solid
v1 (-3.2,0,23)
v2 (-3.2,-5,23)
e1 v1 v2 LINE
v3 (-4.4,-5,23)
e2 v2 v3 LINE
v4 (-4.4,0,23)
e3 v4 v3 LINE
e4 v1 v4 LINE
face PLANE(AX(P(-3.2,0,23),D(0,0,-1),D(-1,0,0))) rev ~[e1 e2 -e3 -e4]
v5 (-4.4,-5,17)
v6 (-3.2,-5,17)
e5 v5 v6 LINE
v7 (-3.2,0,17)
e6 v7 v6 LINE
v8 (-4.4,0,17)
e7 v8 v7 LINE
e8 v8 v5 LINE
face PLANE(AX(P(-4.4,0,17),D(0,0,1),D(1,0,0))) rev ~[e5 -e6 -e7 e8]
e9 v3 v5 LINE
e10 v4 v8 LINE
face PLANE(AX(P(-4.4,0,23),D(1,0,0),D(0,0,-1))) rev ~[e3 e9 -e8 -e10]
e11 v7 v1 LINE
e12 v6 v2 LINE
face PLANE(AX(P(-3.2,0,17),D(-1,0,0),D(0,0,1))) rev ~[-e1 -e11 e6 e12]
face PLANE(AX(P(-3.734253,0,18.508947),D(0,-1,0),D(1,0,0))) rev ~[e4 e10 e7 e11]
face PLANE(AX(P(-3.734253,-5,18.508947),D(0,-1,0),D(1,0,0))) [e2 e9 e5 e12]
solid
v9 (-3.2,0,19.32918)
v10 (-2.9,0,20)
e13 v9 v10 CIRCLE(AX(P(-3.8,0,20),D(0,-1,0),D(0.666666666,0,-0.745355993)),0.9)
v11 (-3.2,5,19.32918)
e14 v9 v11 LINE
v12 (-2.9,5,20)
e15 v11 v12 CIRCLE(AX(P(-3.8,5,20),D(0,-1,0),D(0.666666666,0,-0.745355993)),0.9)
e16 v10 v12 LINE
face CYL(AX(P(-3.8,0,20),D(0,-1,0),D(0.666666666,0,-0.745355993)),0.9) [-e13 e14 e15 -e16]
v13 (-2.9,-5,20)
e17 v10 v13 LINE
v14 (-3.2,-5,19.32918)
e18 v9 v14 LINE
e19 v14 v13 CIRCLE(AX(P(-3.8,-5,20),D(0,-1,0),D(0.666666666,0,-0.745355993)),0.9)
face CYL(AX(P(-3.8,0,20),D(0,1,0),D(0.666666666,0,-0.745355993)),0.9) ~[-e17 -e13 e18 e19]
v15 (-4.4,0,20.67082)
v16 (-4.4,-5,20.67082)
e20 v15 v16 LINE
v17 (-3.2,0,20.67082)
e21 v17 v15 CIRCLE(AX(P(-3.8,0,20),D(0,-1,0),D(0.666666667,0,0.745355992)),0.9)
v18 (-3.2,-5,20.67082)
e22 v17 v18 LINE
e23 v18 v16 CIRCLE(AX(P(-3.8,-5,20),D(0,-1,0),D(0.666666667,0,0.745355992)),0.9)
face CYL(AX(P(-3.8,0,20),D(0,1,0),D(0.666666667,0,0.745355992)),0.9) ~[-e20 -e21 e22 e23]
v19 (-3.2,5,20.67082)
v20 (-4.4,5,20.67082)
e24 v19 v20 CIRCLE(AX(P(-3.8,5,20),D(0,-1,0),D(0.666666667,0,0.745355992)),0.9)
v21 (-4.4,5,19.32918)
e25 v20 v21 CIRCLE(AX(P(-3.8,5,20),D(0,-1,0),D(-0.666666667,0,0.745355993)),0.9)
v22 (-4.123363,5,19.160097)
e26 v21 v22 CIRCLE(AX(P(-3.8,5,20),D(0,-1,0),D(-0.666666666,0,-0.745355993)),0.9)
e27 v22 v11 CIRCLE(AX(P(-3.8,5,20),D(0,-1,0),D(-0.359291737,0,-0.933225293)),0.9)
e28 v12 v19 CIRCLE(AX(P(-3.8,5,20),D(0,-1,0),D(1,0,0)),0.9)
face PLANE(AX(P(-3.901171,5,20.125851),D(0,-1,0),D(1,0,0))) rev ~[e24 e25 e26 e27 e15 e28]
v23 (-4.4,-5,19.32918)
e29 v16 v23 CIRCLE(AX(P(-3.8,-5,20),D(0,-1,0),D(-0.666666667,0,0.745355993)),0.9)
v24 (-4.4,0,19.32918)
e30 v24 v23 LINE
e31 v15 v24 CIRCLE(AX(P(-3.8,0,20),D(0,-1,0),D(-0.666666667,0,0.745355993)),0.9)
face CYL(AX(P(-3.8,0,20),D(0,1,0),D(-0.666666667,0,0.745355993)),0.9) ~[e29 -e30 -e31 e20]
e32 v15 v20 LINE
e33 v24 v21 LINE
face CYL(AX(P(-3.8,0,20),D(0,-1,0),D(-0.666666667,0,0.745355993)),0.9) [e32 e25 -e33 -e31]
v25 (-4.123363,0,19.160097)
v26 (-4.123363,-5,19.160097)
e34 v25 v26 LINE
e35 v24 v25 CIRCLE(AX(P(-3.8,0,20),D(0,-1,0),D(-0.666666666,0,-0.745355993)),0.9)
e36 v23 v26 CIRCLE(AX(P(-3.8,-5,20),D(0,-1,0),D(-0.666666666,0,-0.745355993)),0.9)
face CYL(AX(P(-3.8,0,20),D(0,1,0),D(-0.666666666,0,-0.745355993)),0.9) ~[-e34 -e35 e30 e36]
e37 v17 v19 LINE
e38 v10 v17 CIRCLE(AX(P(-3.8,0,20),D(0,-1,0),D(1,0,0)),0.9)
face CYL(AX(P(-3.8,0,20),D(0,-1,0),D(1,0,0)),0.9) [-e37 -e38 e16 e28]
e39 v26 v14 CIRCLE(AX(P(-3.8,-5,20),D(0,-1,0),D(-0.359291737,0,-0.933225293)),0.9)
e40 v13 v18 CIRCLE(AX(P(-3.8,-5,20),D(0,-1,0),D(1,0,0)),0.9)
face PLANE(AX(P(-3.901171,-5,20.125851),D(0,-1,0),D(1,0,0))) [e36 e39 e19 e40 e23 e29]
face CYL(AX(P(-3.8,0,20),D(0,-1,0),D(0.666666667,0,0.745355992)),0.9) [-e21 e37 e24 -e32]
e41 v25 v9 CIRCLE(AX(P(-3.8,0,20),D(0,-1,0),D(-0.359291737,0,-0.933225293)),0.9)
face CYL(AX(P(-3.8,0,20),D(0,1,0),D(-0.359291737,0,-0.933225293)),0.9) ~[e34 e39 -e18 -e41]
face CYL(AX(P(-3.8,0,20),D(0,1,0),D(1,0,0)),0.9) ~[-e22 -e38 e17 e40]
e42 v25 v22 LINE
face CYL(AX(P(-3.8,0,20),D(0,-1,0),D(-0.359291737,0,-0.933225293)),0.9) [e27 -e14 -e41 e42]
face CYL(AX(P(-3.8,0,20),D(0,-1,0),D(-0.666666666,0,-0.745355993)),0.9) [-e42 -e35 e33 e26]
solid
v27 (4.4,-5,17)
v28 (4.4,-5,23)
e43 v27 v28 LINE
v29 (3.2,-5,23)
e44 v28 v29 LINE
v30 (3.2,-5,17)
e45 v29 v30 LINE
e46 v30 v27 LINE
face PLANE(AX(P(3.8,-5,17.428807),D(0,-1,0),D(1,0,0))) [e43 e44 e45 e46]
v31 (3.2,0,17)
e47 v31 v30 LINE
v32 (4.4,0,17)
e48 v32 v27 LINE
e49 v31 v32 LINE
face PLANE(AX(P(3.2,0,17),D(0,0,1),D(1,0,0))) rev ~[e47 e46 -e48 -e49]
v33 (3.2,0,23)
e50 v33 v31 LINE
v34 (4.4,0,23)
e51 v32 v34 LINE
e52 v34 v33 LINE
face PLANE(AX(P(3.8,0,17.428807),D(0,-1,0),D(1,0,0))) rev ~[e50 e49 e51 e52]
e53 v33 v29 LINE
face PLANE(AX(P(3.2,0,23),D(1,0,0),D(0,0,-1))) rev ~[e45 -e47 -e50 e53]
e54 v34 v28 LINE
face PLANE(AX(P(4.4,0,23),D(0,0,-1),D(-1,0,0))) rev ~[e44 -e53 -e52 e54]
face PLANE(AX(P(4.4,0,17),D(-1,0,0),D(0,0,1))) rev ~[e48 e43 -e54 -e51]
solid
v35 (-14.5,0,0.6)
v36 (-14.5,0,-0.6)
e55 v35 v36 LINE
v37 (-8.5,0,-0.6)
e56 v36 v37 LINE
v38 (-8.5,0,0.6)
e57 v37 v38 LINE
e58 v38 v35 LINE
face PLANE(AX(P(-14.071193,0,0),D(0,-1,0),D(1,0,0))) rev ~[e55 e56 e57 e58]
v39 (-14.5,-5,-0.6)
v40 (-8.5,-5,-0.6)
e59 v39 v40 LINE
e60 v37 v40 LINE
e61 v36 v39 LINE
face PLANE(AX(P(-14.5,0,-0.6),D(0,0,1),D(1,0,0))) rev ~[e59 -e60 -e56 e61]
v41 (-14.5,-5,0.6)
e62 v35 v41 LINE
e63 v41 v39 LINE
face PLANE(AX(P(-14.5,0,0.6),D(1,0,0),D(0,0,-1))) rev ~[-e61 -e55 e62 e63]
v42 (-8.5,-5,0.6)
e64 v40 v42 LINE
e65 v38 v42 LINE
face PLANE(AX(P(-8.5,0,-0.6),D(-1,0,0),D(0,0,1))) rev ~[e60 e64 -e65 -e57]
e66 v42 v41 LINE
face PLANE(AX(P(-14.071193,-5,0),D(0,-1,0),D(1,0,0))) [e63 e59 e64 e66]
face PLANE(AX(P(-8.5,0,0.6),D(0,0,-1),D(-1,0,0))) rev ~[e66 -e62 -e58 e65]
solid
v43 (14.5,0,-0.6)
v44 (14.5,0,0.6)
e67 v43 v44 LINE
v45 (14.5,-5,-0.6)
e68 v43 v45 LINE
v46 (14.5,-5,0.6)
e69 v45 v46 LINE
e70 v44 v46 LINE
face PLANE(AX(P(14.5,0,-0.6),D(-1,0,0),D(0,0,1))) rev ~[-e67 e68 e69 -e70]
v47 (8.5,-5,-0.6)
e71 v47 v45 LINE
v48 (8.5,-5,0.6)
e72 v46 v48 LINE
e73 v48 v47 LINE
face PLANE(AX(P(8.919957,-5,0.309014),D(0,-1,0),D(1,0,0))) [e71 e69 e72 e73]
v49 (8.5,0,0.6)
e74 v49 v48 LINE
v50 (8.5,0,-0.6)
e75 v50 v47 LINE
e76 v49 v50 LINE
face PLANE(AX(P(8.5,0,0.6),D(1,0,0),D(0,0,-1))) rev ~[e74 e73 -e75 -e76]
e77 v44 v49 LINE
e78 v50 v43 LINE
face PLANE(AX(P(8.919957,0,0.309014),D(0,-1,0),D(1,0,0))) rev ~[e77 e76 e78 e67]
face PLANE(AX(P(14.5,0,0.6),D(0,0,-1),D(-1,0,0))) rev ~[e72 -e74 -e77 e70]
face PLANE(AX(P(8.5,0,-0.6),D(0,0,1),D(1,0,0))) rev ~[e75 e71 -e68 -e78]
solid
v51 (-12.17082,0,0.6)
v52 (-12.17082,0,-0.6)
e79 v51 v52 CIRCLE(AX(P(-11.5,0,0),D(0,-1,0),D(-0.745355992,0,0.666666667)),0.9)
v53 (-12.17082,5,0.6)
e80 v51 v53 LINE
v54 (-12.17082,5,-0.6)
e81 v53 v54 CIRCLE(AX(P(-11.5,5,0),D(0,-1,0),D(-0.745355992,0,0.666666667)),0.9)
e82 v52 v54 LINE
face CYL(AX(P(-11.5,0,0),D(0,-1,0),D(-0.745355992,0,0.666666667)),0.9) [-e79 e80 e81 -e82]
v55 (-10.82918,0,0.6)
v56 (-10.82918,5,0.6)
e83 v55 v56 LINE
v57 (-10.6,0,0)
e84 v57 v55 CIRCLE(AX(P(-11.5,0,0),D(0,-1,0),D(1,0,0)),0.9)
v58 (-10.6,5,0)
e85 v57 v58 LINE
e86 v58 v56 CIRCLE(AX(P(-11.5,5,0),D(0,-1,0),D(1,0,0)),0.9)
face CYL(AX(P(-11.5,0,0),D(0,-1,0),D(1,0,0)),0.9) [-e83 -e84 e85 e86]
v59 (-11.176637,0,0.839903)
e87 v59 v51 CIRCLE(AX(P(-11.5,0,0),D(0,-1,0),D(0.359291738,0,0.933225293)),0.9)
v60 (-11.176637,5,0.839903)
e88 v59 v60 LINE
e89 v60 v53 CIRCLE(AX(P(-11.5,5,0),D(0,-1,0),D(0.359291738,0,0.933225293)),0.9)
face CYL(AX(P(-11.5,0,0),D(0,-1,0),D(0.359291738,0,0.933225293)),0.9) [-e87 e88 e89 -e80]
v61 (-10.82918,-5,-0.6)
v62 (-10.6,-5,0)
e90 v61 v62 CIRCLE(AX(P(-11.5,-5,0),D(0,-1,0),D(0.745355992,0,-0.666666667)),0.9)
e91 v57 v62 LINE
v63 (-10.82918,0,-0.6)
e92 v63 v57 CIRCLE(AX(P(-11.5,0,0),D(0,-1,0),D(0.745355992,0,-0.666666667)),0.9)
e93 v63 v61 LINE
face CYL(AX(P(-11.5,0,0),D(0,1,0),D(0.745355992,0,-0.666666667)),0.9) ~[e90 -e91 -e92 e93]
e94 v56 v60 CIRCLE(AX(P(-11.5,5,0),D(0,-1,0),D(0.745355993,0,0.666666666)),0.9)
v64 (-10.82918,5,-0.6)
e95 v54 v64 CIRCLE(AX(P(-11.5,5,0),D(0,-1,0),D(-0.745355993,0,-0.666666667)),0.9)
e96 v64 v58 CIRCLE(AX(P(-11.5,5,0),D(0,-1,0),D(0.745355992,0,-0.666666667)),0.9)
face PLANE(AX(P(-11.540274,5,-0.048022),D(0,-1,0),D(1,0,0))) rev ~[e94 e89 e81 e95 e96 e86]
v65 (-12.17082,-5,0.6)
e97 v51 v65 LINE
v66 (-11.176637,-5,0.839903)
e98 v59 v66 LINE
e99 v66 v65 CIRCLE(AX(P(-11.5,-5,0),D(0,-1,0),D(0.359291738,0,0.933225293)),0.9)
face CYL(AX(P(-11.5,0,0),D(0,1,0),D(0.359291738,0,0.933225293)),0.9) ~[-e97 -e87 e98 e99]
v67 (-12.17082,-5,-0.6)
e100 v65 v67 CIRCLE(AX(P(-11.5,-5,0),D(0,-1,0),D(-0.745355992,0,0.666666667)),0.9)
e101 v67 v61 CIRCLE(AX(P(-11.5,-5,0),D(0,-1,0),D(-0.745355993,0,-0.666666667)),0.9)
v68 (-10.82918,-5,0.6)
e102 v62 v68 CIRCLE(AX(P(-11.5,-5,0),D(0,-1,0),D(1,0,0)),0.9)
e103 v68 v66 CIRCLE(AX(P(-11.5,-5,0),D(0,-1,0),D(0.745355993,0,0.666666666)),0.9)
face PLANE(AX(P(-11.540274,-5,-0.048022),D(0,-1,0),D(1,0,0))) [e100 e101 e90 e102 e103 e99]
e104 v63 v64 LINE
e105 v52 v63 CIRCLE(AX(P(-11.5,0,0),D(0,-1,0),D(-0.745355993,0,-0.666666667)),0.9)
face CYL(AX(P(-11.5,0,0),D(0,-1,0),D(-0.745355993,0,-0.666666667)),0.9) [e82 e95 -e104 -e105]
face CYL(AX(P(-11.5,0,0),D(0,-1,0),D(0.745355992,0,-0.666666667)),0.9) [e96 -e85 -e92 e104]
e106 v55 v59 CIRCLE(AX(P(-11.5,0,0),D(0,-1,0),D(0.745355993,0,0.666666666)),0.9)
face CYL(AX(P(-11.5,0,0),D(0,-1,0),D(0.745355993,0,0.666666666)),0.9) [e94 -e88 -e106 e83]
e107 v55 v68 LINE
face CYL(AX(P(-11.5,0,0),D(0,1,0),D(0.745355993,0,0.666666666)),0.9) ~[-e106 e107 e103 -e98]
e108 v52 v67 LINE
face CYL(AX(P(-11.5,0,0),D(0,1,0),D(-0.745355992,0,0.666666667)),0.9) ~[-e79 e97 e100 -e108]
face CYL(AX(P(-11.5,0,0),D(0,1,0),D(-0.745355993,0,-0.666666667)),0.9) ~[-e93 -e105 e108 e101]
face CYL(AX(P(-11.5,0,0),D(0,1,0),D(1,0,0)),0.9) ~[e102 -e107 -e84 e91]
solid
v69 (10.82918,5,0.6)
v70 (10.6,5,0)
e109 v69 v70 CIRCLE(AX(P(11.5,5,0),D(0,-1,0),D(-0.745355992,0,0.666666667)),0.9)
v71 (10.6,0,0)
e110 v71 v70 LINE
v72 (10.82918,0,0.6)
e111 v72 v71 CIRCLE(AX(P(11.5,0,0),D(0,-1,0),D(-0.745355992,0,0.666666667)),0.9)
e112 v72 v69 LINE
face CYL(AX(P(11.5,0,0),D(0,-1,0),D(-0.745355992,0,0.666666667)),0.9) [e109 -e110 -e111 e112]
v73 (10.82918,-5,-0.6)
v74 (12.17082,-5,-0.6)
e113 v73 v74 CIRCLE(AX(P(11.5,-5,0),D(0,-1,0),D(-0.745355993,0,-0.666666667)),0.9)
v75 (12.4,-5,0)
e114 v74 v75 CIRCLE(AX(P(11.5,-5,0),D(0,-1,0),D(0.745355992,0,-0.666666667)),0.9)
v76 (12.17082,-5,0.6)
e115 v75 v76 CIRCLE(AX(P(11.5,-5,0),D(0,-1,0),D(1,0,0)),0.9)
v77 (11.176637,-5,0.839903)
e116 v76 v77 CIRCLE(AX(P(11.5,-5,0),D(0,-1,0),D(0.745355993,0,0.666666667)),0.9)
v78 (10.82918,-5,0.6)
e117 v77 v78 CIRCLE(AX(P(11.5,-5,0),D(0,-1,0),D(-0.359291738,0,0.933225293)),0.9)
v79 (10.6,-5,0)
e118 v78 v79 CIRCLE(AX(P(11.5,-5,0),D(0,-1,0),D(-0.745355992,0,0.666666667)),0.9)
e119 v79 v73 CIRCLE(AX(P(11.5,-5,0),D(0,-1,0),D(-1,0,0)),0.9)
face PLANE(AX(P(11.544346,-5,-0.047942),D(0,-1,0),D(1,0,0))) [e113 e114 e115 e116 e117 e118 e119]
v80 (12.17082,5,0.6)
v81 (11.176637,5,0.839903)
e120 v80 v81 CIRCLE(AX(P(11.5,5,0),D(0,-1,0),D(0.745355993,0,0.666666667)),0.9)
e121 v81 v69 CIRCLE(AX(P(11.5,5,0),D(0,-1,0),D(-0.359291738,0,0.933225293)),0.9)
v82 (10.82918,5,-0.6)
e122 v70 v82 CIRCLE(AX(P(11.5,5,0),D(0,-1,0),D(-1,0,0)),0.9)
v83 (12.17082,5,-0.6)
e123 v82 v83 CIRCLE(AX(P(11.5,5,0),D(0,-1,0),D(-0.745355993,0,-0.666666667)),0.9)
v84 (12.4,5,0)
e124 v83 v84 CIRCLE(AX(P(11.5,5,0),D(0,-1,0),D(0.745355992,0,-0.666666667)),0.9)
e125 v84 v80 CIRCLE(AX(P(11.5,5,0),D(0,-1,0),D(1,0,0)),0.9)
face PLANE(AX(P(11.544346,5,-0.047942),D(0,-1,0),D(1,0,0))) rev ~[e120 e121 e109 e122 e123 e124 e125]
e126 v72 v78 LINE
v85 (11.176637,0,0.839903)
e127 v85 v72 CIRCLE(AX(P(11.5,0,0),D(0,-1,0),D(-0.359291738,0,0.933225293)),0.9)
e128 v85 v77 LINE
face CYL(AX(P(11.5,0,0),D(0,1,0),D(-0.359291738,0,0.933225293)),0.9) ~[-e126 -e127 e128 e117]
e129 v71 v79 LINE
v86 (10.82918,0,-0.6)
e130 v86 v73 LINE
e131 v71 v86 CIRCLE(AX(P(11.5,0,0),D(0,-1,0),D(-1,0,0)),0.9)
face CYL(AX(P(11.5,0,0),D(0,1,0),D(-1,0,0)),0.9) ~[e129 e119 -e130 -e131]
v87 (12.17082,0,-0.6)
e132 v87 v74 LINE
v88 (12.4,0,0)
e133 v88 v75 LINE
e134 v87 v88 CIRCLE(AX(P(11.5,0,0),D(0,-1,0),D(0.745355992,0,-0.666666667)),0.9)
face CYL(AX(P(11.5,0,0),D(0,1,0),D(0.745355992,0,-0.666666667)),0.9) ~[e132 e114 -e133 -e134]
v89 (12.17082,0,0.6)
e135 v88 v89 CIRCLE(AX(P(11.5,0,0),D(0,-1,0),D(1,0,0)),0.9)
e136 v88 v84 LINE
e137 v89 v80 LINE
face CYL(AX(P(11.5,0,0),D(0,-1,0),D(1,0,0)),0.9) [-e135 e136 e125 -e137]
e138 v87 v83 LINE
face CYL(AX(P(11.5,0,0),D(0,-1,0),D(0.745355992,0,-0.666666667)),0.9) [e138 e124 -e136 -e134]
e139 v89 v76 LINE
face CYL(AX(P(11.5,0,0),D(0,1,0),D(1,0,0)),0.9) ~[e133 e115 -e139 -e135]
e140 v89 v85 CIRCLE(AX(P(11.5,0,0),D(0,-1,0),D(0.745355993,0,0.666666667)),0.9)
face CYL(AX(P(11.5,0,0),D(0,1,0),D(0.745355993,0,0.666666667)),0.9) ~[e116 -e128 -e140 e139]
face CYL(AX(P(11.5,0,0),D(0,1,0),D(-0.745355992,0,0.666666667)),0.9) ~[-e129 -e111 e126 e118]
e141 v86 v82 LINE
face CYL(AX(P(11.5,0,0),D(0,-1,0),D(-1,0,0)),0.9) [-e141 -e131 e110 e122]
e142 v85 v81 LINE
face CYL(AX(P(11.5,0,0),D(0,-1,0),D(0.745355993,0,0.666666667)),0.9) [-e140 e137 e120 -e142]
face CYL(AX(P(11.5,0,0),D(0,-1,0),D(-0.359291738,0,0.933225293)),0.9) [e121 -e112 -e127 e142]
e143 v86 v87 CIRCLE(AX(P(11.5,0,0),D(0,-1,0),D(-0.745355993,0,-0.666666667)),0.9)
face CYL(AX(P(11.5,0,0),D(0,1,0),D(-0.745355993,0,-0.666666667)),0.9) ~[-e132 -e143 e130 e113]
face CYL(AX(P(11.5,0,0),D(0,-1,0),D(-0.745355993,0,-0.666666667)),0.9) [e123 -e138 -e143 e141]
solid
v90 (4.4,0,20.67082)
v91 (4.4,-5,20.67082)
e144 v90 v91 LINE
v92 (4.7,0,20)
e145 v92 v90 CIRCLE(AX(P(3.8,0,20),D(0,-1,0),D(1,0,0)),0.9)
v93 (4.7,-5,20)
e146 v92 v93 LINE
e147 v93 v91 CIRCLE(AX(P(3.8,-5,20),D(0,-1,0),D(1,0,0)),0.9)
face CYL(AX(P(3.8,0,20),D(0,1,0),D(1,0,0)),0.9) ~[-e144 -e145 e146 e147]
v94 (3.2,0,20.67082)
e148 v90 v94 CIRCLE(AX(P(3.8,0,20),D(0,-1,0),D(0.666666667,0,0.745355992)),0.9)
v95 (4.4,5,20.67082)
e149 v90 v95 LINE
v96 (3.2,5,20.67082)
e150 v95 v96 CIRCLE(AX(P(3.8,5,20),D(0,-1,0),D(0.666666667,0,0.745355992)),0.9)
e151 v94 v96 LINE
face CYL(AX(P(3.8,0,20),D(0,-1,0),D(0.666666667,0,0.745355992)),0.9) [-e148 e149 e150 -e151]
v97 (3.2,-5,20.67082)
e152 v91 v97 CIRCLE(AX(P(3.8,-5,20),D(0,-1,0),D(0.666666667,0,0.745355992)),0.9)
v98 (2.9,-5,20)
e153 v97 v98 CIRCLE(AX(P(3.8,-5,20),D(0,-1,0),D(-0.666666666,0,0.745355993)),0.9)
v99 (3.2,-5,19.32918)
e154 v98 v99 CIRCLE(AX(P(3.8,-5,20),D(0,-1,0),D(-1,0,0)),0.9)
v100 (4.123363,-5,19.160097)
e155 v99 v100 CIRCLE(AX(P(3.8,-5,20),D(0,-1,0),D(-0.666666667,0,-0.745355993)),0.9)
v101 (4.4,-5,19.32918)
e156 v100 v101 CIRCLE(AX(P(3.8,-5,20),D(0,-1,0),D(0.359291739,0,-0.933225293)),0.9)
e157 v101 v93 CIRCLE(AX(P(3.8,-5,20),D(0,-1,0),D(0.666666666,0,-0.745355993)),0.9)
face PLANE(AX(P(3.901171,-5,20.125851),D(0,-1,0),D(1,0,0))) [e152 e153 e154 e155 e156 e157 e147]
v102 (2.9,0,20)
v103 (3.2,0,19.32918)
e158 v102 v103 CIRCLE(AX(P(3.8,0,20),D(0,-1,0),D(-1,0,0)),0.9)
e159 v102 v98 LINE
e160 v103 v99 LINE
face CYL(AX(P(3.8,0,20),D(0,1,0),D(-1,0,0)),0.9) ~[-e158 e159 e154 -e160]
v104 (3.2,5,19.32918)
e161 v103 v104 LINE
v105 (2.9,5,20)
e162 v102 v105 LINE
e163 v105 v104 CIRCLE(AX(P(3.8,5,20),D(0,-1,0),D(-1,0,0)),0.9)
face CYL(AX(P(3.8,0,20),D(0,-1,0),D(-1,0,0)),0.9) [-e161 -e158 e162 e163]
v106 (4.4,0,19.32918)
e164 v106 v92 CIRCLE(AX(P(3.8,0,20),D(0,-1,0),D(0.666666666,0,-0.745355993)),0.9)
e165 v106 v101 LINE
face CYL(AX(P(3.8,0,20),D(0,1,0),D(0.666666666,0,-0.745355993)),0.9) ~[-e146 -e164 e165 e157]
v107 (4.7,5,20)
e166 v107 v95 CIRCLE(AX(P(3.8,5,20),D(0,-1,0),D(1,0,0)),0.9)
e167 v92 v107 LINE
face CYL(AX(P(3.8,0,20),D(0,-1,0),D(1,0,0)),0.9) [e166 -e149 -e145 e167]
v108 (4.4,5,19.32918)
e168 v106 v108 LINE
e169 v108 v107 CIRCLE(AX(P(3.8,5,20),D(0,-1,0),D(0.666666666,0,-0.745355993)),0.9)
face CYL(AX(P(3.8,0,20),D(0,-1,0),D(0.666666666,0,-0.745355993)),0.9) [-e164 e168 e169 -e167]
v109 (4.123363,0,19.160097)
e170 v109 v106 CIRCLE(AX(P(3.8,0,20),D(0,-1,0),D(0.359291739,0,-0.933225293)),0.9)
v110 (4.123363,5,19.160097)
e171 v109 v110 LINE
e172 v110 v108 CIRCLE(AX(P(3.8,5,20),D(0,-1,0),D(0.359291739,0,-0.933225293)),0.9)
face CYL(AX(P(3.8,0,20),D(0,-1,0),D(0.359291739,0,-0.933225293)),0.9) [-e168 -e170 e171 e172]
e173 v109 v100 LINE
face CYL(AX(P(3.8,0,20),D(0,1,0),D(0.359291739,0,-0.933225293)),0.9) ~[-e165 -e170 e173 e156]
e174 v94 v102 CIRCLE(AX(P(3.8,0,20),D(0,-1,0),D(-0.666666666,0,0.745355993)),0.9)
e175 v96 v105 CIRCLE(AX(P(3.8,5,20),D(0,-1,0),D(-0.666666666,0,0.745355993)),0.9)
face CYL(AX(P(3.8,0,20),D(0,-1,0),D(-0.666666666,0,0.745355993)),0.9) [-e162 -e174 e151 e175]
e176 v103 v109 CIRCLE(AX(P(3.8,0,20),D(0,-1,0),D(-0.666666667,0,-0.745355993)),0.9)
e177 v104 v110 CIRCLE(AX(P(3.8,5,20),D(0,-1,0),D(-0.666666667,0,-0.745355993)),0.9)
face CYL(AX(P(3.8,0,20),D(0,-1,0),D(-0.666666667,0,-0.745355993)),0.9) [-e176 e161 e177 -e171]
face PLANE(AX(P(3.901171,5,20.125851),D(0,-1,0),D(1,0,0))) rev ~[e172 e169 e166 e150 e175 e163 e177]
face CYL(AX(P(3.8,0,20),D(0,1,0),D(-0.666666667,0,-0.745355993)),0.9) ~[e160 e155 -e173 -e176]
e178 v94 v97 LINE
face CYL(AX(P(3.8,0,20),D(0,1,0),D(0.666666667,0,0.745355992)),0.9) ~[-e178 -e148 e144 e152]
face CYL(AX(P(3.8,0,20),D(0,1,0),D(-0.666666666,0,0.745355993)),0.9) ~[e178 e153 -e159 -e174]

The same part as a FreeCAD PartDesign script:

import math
import FreeCAD as App
import Part
import Sketcher

V = App.Vector
Q = App.Units.Quantity


def add_polygon(sketch, points):
    """Adds a closed chain of lines whose ends are joined by coincident constraints."""
    first, n = sketch.GeometryCount, len(points)
    for a, b in zip(points, points[1:] + points[:1]):
        sketch.addGeometry(Part.LineSegment(App.Vector(*a, 0), App.Vector(*b, 0)), False)
    for i in range(n):
        sketch.addConstraint(Sketcher.Constraint("Coincident", first + i, 2, first + (i + 1) % n, 1))

doc = App.newDocument("Part")
body = doc.addObject("PartDesign::Body", "Body")

sketch1 = body.newObject("Sketcher::SketchObject", "Sketch")
sketch1.AttachmentSupport = (doc.getObject("XZ_Plane"), [""])
sketch1.MapMode = "FlatFace"
sketch1.addGeometry(Part.ArcOfCircle(Part.Circle(V(-3.8, 20, 0), V(0, 0, 1), 0.9), math.radians(48.189685), math.radians(131.810315)), False)
sketch1.addGeometry(Part.ArcOfCircle(Part.Circle(V(-3.8, 20, 0), V(0, 0, 1), 0.9), math.radians(131.810315), math.radians(228.189685)), False)
sketch1.addGeometry(Part.ArcOfCircle(Part.Circle(V(-3.8, 20, 0), V(0, 0, 1), 0.9), math.radians(-131.810315), math.radians(-111.056706)), False)
sketch1.addGeometry(Part.ArcOfCircle(Part.Circle(V(-3.8, 20, 0), V(0, 0, 1), 0.9), math.radians(-111.056706), math.radians(-48.189685)), False)
sketch1.addGeometry(Part.ArcOfCircle(Part.Circle(V(-3.8, 20, 0), V(0, 0, 1), 0.9), math.radians(-48.189685), math.radians(0)), False)
sketch1.addGeometry(Part.ArcOfCircle(Part.Circle(V(-3.8, 20, 0), V(0, 0, 1), 0.9), math.radians(0), math.radians(48.189685)), False)
sketch1.addConstraint(Sketcher.Constraint("Tangent", 0, 2, 1, 1))
sketch1.addConstraint(Sketcher.Constraint("Tangent", 1, 2, 2, 1))
sketch1.addConstraint(Sketcher.Constraint("Tangent", 2, 2, 3, 1))
sketch1.addConstraint(Sketcher.Constraint("Tangent", 3, 2, 4, 1))
sketch1.addConstraint(Sketcher.Constraint("Tangent", 4, 2, 5, 1))
sketch1.addConstraint(Sketcher.Constraint("Tangent", 5, 2, 0, 1))
sketch1.addConstraint(Sketcher.Constraint("Coincident", 2, 3, 0, 3))
sketch1.addConstraint(Sketcher.Constraint("Equal", 2, 3))
sketch1.addConstraint(Sketcher.Constraint("Horizontal", 1, 2, 3, 2))
sketch1.addConstraint(Sketcher.Constraint("Horizontal", 5, 3, 4, 2))
sketch1.addConstraint(Sketcher.Constraint("Horizontal", 0, 2, 5, 2))
sketch1.addConstraint(Sketcher.Constraint("Vertical", 0, 2, 1, 2))
sketch1.addConstraint(Sketcher.Constraint("Radius", 0, Q("0.9 mm")))
sketch1.addConstraint(Sketcher.Constraint("DistanceY", -1, 1, 0, 3, Q("20 mm")))
sketch1.addConstraint(Sketcher.Constraint("DistanceX", 0, 3, -1, 1, Q("3.8 mm")))
sketch1.addConstraint(Sketcher.Constraint("DistanceX", 0, 2, -1, 1, Q("4.4 mm")))
sketch1.addConstraint(Sketcher.Constraint("DistanceX", 2, 2, -1, 1, Q("4.123363 mm")))
pad1 = body.newObject("PartDesign::Pad", "Pad")
pad1.Profile = sketch1
pad1.Type = "TwoLengths"
pad1.Length = 5
pad1.Length2 = 5
pad1.Reversed = True
body2 = doc.addObject("PartDesign::Body", "Body001")

sketch2 = body2.newObject("Sketcher::SketchObject", "Sketch001")
sketch2.AttachmentSupport = (doc.getObject("XZ_Plane001"), [""])
sketch2.MapMode = "FlatFace"
sketch2.addGeometry(Part.ArcOfCircle(Part.Circle(V(3.8, 20, 0), V(0, 0, 1), 0.9), math.radians(-131.810315), math.radians(-68.943294)), False)
sketch2.addGeometry(Part.ArcOfCircle(Part.Circle(V(3.8, 20, 0), V(0, 0, 1), 0.9), math.radians(-68.943294), math.radians(-48.189685)), False)
sketch2.addGeometry(Part.ArcOfCircle(Part.Circle(V(3.8, 20, 0), V(0, 0, 1), 0.9), math.radians(-48.189685), math.radians(0)), False)
sketch2.addGeometry(Part.ArcOfCircle(Part.Circle(V(3.8, 20, 0), V(0, 0, 1), 0.9), math.radians(0), math.radians(48.189685)), False)
sketch2.addGeometry(Part.ArcOfCircle(Part.Circle(V(3.8, 20, 0), V(0, 0, 1), 0.9), math.radians(48.189685), math.radians(131.810315)), False)
sketch2.addGeometry(Part.ArcOfCircle(Part.Circle(V(3.8, 20, 0), V(0, 0, 1), 0.9), math.radians(131.810315), math.radians(180)), False)
sketch2.addGeometry(Part.ArcOfCircle(Part.Circle(V(3.8, 20, 0), V(0, 0, 1), 0.9), math.radians(180), math.radians(228.189685)), False)
sketch2.addConstraint(Sketcher.Constraint("Tangent", 0, 2, 1, 1))
sketch2.addConstraint(Sketcher.Constraint("Tangent", 1, 2, 2, 1))
sketch2.addConstraint(Sketcher.Constraint("Tangent", 2, 2, 3, 1))
sketch2.addConstraint(Sketcher.Constraint("Tangent", 3, 2, 4, 1))
sketch2.addConstraint(Sketcher.Constraint("Tangent", 4, 2, 5, 1))
sketch2.addConstraint(Sketcher.Constraint("Tangent", 5, 2, 6, 1))
sketch2.addConstraint(Sketcher.Constraint("Tangent", 6, 2, 0, 1))
sketch2.addConstraint(Sketcher.Constraint("Coincident", 2, 3, 0, 3))
sketch2.addConstraint(Sketcher.Constraint("Coincident", 4, 3, 0, 3))
sketch2.addConstraint(Sketcher.Constraint("Horizontal", 6, 3, 2, 2))
sketch2.addConstraint(Sketcher.Constraint("Horizontal", 3, 2, 4, 2))
sketch2.addConstraint(Sketcher.Constraint("Horizontal", 2, 2, 5, 2))
sketch2.addConstraint(Sketcher.Constraint("Horizontal", 1, 2, 6, 2))
sketch2.addConstraint(Sketcher.Constraint("Vertical", 1, 2, 3, 2))
sketch2.addConstraint(Sketcher.Constraint("Radius", 0, Q("0.9 mm")))
sketch2.addConstraint(Sketcher.Constraint("DistanceY", -1, 1, 0, 3, Q("20 mm")))
sketch2.addConstraint(Sketcher.Constraint("DistanceX", -1, 1, 0, 3, Q("3.8 mm")))
sketch2.addConstraint(Sketcher.Constraint("DistanceX", -1, 1, 1, 2, Q("4.4 mm")))
sketch2.addConstraint(Sketcher.Constraint("DistanceX", -1, 1, 0, 2, Q("4.123363 mm")))
pad2 = body2.newObject("PartDesign::Pad", "Pad001")
pad2.Profile = sketch2
pad2.Type = "TwoLengths"
pad2.Length = 5
pad2.Length2 = 5
pad2.Reversed = True
body3 = doc.addObject("PartDesign::Body", "Body002")

sketch3 = body3.newObject("Sketcher::SketchObject", "Sketch002")
sketch3.AttachmentSupport = (doc.getObject("XZ_Plane002"), [""])
sketch3.MapMode = "FlatFace"
sketch3.addGeometry(Part.ArcOfCircle(Part.Circle(V(-11.5, 0, 0), V(0, 0, 1), 0.9), math.radians(138.189685), math.radians(221.810315)), False)
sketch3.addGeometry(Part.ArcOfCircle(Part.Circle(V(-11.5, 0, 0), V(0, 0, 1), 0.9), math.radians(-138.189685), math.radians(-41.810315)), False)
sketch3.addGeometry(Part.ArcOfCircle(Part.Circle(V(-11.5, 0, 0), V(0, 0, 1), 0.9), math.radians(-41.810315), math.radians(0)), False)
sketch3.addGeometry(Part.ArcOfCircle(Part.Circle(V(-11.5, 0, 0), V(0, 0, 1), 0.9), math.radians(0), math.radians(41.810315)), False)
sketch3.addGeometry(Part.ArcOfCircle(Part.Circle(V(-11.5, 0, 0), V(0, 0, 1), 0.9), math.radians(41.810315), math.radians(68.943294)), False)
sketch3.addGeometry(Part.ArcOfCircle(Part.Circle(V(-11.5, 0, 0), V(0, 0, 1), 0.9), math.radians(68.943294), math.radians(138.189685)), False)
sketch3.addConstraint(Sketcher.Constraint("Tangent", 0, 2, 1, 1))
sketch3.addConstraint(Sketcher.Constraint("Tangent", 1, 2, 2, 1))
sketch3.addConstraint(Sketcher.Constraint("Tangent", 2, 2, 3, 1))
sketch3.addConstraint(Sketcher.Constraint("Tangent", 3, 2, 4, 1))
sketch3.addConstraint(Sketcher.Constraint("Tangent", 4, 2, 5, 1))
sketch3.addConstraint(Sketcher.Constraint("Tangent", 5, 2, 0, 1))
sketch3.addConstraint(Sketcher.Constraint("Coincident", 2, 3, 0, 3))
sketch3.addConstraint(Sketcher.Constraint("Equal", 2, 3))
sketch3.addConstraint(Sketcher.Constraint("Symmetric", 1, 2, 3, 2, -1))
sketch3.addConstraint(Sketcher.Constraint("PointOnObject", 2, 2, -1))
sketch3.addConstraint(Sketcher.Constraint("Horizontal", 0, 2, 1, 2))
sketch3.addConstraint(Sketcher.Constraint("Horizontal", 3, 2, 5, 2))
sketch3.addConstraint(Sketcher.Constraint("Radius", 0, Q("0.9 mm")))
sketch3.addConstraint(Sketcher.Constraint("DistanceX", 0, 3, -1, 1, Q("11.5 mm")))
sketch3.addConstraint(Sketcher.Constraint("DistanceY", 0, 2, -1, 1, Q("0.6 mm")))
sketch3.addConstraint(Sketcher.Constraint("DistanceX", 4, 2, -1, 1, Q("11.176637 mm")))
pad3 = body3.newObject("PartDesign::Pad", "Pad002")
pad3.Profile = sketch3
pad3.Type = "TwoLengths"
pad3.Length = 5
pad3.Length2 = 5
pad3.Reversed = True
body4 = doc.addObject("PartDesign::Body", "Body003")

sketch4 = body4.newObject("Sketcher::SketchObject", "Sketch003")
sketch4.AttachmentSupport = (doc.getObject("XZ_Plane003"), [""])
sketch4.MapMode = "FlatFace"
sketch4.addGeometry(Part.ArcOfCircle(Part.Circle(V(11.5, 0, 0), V(0, 0, 1), 0.9), math.radians(138.189685), math.radians(180)), False)
sketch4.addGeometry(Part.ArcOfCircle(Part.Circle(V(11.5, 0, 0), V(0, 0, 1), 0.9), math.radians(180), math.radians(221.810315)), False)
sketch4.addGeometry(Part.ArcOfCircle(Part.Circle(V(11.5, 0, 0), V(0, 0, 1), 0.9), math.radians(-138.189685), math.radians(-41.810315)), False)
sketch4.addGeometry(Part.ArcOfCircle(Part.Circle(V(11.5, 0, 0), V(0, 0, 1), 0.9), math.radians(-41.810315), math.radians(0)), False)
sketch4.addGeometry(Part.ArcOfCircle(Part.Circle(V(11.5, 0, 0), V(0, 0, 1), 0.9), math.radians(0), math.radians(41.810315)), False)
sketch4.addGeometry(Part.ArcOfCircle(Part.Circle(V(11.5, 0, 0), V(0, 0, 1), 0.9), math.radians(41.810315), math.radians(111.056706)), False)
sketch4.addGeometry(Part.ArcOfCircle(Part.Circle(V(11.5, 0, 0), V(0, 0, 1), 0.9), math.radians(111.056706), math.radians(138.189685)), False)
sketch4.addConstraint(Sketcher.Constraint("Tangent", 0, 2, 1, 1))
sketch4.addConstraint(Sketcher.Constraint("Tangent", 1, 2, 2, 1))
sketch4.addConstraint(Sketcher.Constraint("Tangent", 2, 2, 3, 1))
sketch4.addConstraint(Sketcher.Constraint("Tangent", 3, 2, 4, 1))
sketch4.addConstraint(Sketcher.Constraint("Tangent", 4, 2, 5, 1))
sketch4.addConstraint(Sketcher.Constraint("Tangent", 5, 2, 6, 1))
sketch4.addConstraint(Sketcher.Constraint("Tangent", 6, 2, 0, 1))
sketch4.addConstraint(Sketcher.Constraint("Coincident", 2, 3, 0, 3))
sketch4.addConstraint(Sketcher.Constraint("Coincident", 4, 3, 0, 3))
sketch4.addConstraint(Sketcher.Constraint("Symmetric", 2, 2, 4, 2, -1))
sketch4.addConstraint(Sketcher.Constraint("PointOnObject", 0, 2, -1))
sketch4.addConstraint(Sketcher.Constraint("PointOnObject", 3, 2, -1))
sketch4.addConstraint(Sketcher.Constraint("Horizontal", 1, 2, 2, 2))
sketch4.addConstraint(Sketcher.Constraint("Horizontal", 4, 2, 6, 2))
sketch4.addConstraint(Sketcher.Constraint("Radius", 0, Q("0.9 mm")))
sketch4.addConstraint(Sketcher.Constraint("DistanceX", -1, 1, 0, 3, Q("11.5 mm")))
sketch4.addConstraint(Sketcher.Constraint("DistanceY", 1, 2, -1, 1, Q("0.6 mm")))
sketch4.addConstraint(Sketcher.Constraint("DistanceX", -1, 1, 5, 2, Q("11.176637 mm")))
pad4 = body4.newObject("PartDesign::Pad", "Pad003")
pad4.Profile = sketch4
pad4.Type = "TwoLengths"
pad4.Length = 5
pad4.Length2 = 5
pad4.Reversed = True
body5 = doc.addObject("PartDesign::Body", "Body004")

sketch5 = body5.newObject("Sketcher::SketchObject", "Sketch004")
sketch5.AttachmentSupport = (doc.getObject("XZ_Plane004"), [""])
sketch5.MapMode = "FlatFace"
add_polygon(sketch5, [(-14.5, 0.6), (-14.5, -0.6), (-8.5, -0.6), (-8.5, 0.6)])
sketch5.addConstraint(Sketcher.Constraint("Vertical", 0))
sketch5.addConstraint(Sketcher.Constraint("Horizontal", 1))
sketch5.addConstraint(Sketcher.Constraint("Vertical", 2))
sketch5.addConstraint(Sketcher.Constraint("Horizontal", 3))
sketch5.addConstraint(Sketcher.Constraint("DistanceX", 1, 1, 1, 2, Q("6 mm")))
sketch5.addConstraint(Sketcher.Constraint("DistanceY", 0, 2, 0, 1, Q("1.2 mm")))
sketch5.addConstraint(Sketcher.Constraint("DistanceX", 0, 2, -1, 1, Q("14.5 mm")))
sketch5.addConstraint(Sketcher.Constraint("DistanceY", 0, 2, -1, 1, Q("0.6 mm")))
pad5 = body5.newObject("PartDesign::Pad", "Pad004")
pad5.Profile = sketch5
pad5.Length = 5
body6 = doc.addObject("PartDesign::Body", "Body005")

sketch6 = body6.newObject("Sketcher::SketchObject", "Sketch005")
sketch6.AttachmentSupport = (doc.getObject("XZ_Plane005"), [""])
sketch6.MapMode = "FlatFace"
add_polygon(sketch6, [(8.5, 0.6), (8.5, -0.6), (14.5, -0.6), (14.5, 0.6)])
sketch6.addConstraint(Sketcher.Constraint("Vertical", 0))
sketch6.addConstraint(Sketcher.Constraint("Horizontal", 1))
sketch6.addConstraint(Sketcher.Constraint("Vertical", 2))
sketch6.addConstraint(Sketcher.Constraint("Horizontal", 3))
sketch6.addConstraint(Sketcher.Constraint("DistanceX", 1, 1, 1, 2, Q("6 mm")))
sketch6.addConstraint(Sketcher.Constraint("DistanceY", 0, 2, 0, 1, Q("1.2 mm")))
sketch6.addConstraint(Sketcher.Constraint("DistanceX", -1, 1, 0, 2, Q("8.5 mm")))
sketch6.addConstraint(Sketcher.Constraint("DistanceY", 0, 2, -1, 1, Q("0.6 mm")))
pad6 = body6.newObject("PartDesign::Pad", "Pad005")
pad6.Profile = sketch6
pad6.Length = 5
body7 = doc.addObject("PartDesign::Body", "Body006")

sketch7 = body7.newObject("Sketcher::SketchObject", "Sketch006")
sketch7.AttachmentSupport = (doc.getObject("XZ_Plane006"), [""])
sketch7.MapMode = "FlatFace"
add_polygon(sketch7, [(3.2, 17), (4.4, 17), (4.4, 23), (3.2, 23)])
sketch7.addConstraint(Sketcher.Constraint("Horizontal", 0))
sketch7.addConstraint(Sketcher.Constraint("Vertical", 1))
sketch7.addConstraint(Sketcher.Constraint("Horizontal", 2))
sketch7.addConstraint(Sketcher.Constraint("Vertical", 3))
sketch7.addConstraint(Sketcher.Constraint("DistanceY", 1, 1, 1, 2, Q("6 mm")))
sketch7.addConstraint(Sketcher.Constraint("DistanceX", 0, 1, 0, 2, Q("1.2 mm")))
sketch7.addConstraint(Sketcher.Constraint("DistanceY", -1, 1, 0, 2, Q("17 mm")))
sketch7.addConstraint(Sketcher.Constraint("DistanceX", -1, 1, 0, 2, Q("4.4 mm")))
pad7 = body7.newObject("PartDesign::Pad", "Pad006")
pad7.Profile = sketch7
pad7.Length = 5
body8 = doc.addObject("PartDesign::Body", "Body007")

sketch8 = body8.newObject("Sketcher::SketchObject", "Sketch007")
sketch8.AttachmentSupport = (doc.getObject("XZ_Plane007"), [""])
sketch8.MapMode = "FlatFace"
add_polygon(sketch8, [(-4.4, 17), (-3.2, 17), (-3.2, 23), (-4.4, 23)])
sketch8.addConstraint(Sketcher.Constraint("Horizontal", 0))
sketch8.addConstraint(Sketcher.Constraint("Vertical", 1))
sketch8.addConstraint(Sketcher.Constraint("Horizontal", 2))
sketch8.addConstraint(Sketcher.Constraint("Vertical", 3))
sketch8.addConstraint(Sketcher.Constraint("DistanceY", 1, 1, 1, 2, Q("6 mm")))
sketch8.addConstraint(Sketcher.Constraint("DistanceX", 0, 1, 0, 2, Q("1.2 mm")))
sketch8.addConstraint(Sketcher.Constraint("DistanceY", -1, 1, 0, 2, Q("17 mm")))
sketch8.addConstraint(Sketcher.Constraint("DistanceX", 0, 2, -1, 1, Q("3.2 mm")))
pad8 = body8.newObject("PartDesign::Pad", "Pad007")
pad8.Profile = sketch8
pad8.Length = 5

doc.recompute()
